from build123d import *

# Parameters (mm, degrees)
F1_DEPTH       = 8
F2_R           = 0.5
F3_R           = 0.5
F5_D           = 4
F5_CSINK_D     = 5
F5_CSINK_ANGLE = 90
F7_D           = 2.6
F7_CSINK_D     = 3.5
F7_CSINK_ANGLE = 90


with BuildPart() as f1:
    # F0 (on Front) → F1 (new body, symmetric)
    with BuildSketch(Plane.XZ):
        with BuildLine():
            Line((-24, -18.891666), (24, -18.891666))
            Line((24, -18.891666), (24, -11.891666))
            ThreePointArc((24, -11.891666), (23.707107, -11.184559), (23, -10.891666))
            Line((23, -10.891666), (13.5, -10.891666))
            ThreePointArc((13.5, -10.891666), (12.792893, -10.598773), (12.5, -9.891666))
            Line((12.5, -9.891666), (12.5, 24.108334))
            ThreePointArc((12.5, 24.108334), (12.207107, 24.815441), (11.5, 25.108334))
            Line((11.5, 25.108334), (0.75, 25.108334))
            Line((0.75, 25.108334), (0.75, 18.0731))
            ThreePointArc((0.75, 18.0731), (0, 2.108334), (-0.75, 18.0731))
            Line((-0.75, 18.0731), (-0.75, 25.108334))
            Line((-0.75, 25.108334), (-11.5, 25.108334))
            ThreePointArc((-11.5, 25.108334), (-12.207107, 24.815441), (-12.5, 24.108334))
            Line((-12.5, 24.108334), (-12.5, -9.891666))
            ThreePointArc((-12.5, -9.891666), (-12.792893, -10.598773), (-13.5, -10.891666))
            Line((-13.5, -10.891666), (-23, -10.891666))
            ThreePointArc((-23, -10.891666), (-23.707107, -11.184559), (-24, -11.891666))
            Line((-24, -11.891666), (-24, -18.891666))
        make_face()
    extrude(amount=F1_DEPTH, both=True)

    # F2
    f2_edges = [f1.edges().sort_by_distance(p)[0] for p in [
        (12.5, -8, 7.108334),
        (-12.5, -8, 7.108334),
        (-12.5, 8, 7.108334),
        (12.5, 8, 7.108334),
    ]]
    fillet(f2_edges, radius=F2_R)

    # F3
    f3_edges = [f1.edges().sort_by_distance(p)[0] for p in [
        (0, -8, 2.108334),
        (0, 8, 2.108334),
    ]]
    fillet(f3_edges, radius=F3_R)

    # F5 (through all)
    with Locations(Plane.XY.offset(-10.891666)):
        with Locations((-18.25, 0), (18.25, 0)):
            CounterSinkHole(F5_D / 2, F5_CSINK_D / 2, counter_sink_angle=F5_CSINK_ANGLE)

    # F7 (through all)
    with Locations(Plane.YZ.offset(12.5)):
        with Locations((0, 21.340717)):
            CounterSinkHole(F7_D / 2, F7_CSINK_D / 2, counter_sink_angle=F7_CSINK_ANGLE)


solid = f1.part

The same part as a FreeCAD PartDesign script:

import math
import FreeCAD as App
import Part
import Sketcher
from FreeCAD import Vector
Q = App.Units.Quantity


def edges_at(feature, points):
    """Names of the edges that pass closest to the given points."""
    edges = feature.Shape.Edges
    near = lambda p: min(range(len(edges)), key=lambda i: edges[i].distToShape(Part.Vertex(*p))[0])
    return sorted({f"Edge{near(p) + 1}" for p in points})

doc = App.newDocument("Part")
params = doc.addObject("Spreadsheet::Sheet", "Params")
for row, (alias, value) in enumerate([
    ("sketch1_radius", "0.999999 mm"),
    ("sketch1_radius2", "8 mm"),
    ("sketch1_width", "48 mm"),
    ("sketch1_height", "7 mm"),
    ("sketch1_height2", "34 mm"),
    ("pad1_length", "16 mm"),
    ("fillet_radius", "0.5 mm"),
    ("fillet2_radius", "0.5 mm"),
    ("sketch2_diameter", "4 mm"),
    ("hole_diameter", "4 mm"),
    ("hole_csink_diameter", "5 mm"),
    ("sketch3_diameter", "2.6 mm"),
    ("hole2_diameter", "2.6 mm"),
    ("hole2_csink_diameter", "3.5 mm"),
], start=1):
    params.set(f"A{row}", alias)
    params.set(f"B{row}", "=" + value)
    params.setAlias(f"B{row}", alias)

body = doc.addObject("PartDesign::Body", "Body")

# Sketch on XZ plane
sketch1 = body.newObject("Sketcher::SketchObject", "Sketch")
sketch1.AttachmentSupport = (doc.getObject("XZ_Plane"), [""])
sketch1.MapMode = "FlatFace"
sketch1.addGeometry([
    Part.LineSegment(Vector(-24, -18.891666, 0), Vector(24, -18.891666, 0)),  # 0
    Part.LineSegment(Vector(24, -18.891666, 0), Vector(24, -11.891666, 0)),  # 1
    Part.ArcOfCircle(Part.Circle(Vector(23.000001, -11.891665, 0), Vector(0, 0, 1), 0.999999), math.radians(-0.000043), math.radians(90.000043)),  # 2
    Part.LineSegment(Vector(23, -10.891666, 0), Vector(13.5, -10.891666, 0)),  # 3
    Part.ArcOfCircle(Part.Circle(Vector(13.499999, -9.891667, 0), Vector(0, 0, 1), 0.999999), math.radians(179.999957), math.radians(270.000043)),  # 4
    Part.LineSegment(Vector(12.5, -9.891666, 0), Vector(12.5, 24.108334, 0)),  # 5
    Part.ArcOfCircle(Part.Circle(Vector(11.500001, 24.108335, 0), Vector(0, 0, 1), 0.999999), math.radians(-0.000043), math.radians(90.000043)),  # 6
    Part.LineSegment(Vector(11.5, 25.108334, 0), Vector(0.75, 25.108334, 0)),  # 7
    Part.LineSegment(Vector(0.75, 25.108334, 0), Vector(0.75, 18.0731, 0)),  # 8
    Part.ArcOfCircle(Part.Circle(Vector(0, 10.108334, 0), Vector(0, 0, 1), 8), math.radians(95.379379), math.radians(444.620621)),  # 9
    Part.LineSegment(Vector(-0.75, 18.0731, 0), Vector(-0.75, 25.108334, 0)),  # 10
    Part.LineSegment(Vector(-0.75, 25.108334, 0), Vector(-11.5, 25.108334, 0)),  # 11
    Part.ArcOfCircle(Part.Circle(Vector(-11.500001, 24.108335, 0), Vector(0, 0, 1), 0.999999), math.radians(89.999957), math.radians(180.000043)),  # 12
    Part.LineSegment(Vector(-12.5, 24.108334, 0), Vector(-12.5, -9.891666, 0)),  # 13
    Part.ArcOfCircle(Part.Circle(Vector(-13.499999, -9.891667, 0), Vector(0, 0, 1), 0.999999), math.radians(-90.000043), math.radians(0.000043)),  # 14
    Part.LineSegment(Vector(-13.5, -10.891666, 0), Vector(-23, -10.891666, 0)),  # 15
    Part.ArcOfCircle(Part.Circle(Vector(-23.000001, -11.891665, 0), Vector(0, 0, 1), 0.999999), math.radians(89.999957), math.radians(180.000043)),  # 16
    Part.LineSegment(Vector(-24, -11.891666, 0), Vector(-24, -18.891666, 0)),  # 17
], False)
sketch1.addConstraint([
    Sketcher.Constraint("Coincident", 0, 2, 1, 1),
    Sketcher.Constraint("Tangent", 1, 2, 2, 1),
    Sketcher.Constraint("Tangent", 2, 2, 3, 1),
    Sketcher.Constraint("Tangent", 3, 2, 4, 2),
    Sketcher.Constraint("Tangent", 4, 1, 5, 1),
    Sketcher.Constraint("Tangent", 5, 2, 6, 1),
    Sketcher.Constraint("Tangent", 6, 2, 7, 1),
    Sketcher.Constraint("Coincident", 7, 2, 8, 1),
    Sketcher.Constraint("Coincident", 8, 2, 9, 2),
    Sketcher.Constraint("Coincident", 9, 1, 10, 1),
    Sketcher.Constraint("Coincident", 10, 2, 11, 1),
    Sketcher.Constraint("Tangent", 11, 2, 12, 1),
    Sketcher.Constraint("Tangent", 12, 2, 13, 1),
    Sketcher.Constraint("Tangent", 13, 2, 14, 2),
    Sketcher.Constraint("Tangent", 14, 1, 15, 1),
    Sketcher.Constraint("Tangent", 15, 2, 16, 1),
    Sketcher.Constraint("Tangent", 16, 2, 17, 1),
    Sketcher.Constraint("Coincident", 17, 2, 0, 1),
    Sketcher.Constraint("Horizontal", 0),
    Sketcher.Constraint("Vertical", 1),
    Sketcher.Constraint("Horizontal", 3),
    Sketcher.Constraint("Vertical", 5),
    Sketcher.Constraint("Horizontal", 7),
    Sketcher.Constraint("Vertical", 8),
    Sketcher.Constraint("Vertical", 10),
    Sketcher.Constraint("Horizontal", 11),
    Sketcher.Constraint("Vertical", 13),
    Sketcher.Constraint("Horizontal", 15),
    Sketcher.Constraint("Vertical", 17),
    Sketcher.Constraint("Equal", 2, 4),
    Sketcher.Constraint("Equal", 4, 6),
    Sketcher.Constraint("Equal", 6, 12),
    Sketcher.Constraint("Equal", 12, 14),
    Sketcher.Constraint("Equal", 14, 16),
    Sketcher.Constraint("Symmetric", 6, 3, 12, 3, -2),
    Sketcher.Constraint("Symmetric", 2, 3, 16, 3, -2),
    Sketcher.Constraint("Symmetric", 8, 2, 9, 1, -2),
    Sketcher.Constraint("Radius", 2, Q("0.999999 mm")),
    Sketcher.Constraint("Radius", 9, Q("8 mm")),
    Sketcher.Constraint("DistanceX", 0, 1, 0, 2, Q("48 mm")),
    Sketcher.Constraint("DistanceY", 1, 1, 1, 2, Q("7 mm")),
    Sketcher.Constraint("DistanceY", 5, 1, 5, 2, Q("34 mm")),
    Sketcher.Constraint("DistanceX", 3, 2, 3, 1, Q("9.5 mm")),
    Sketcher.Constraint("DistanceY", 9, 3, 6, 3, Q("14.000001 mm")),
    Sketcher.Constraint("DistanceX", 7, 2, 7, 1, Q("10.75 mm")),
    Sketcher.Constraint("DistanceY", -1, 1, 8, 2, Q("18.0731 mm")),
])
sketch1.setExpression("Constraints[37]", "Params.sketch1_radius")
sketch1.setExpression("Constraints[38]", "Params.sketch1_radius2")
sketch1.setExpression("Constraints[39]", "Params.sketch1_width")
sketch1.setExpression("Constraints[40]", "Params.sketch1_height")
sketch1.setExpression("Constraints[41]", "Params.sketch1_height2")
pad1 = body.newObject("PartDesign::Pad", "Pad")
pad1.Profile = sketch1
pad1.setExpression("Length", "Params.pad1_length")
pad1.Midplane = True
doc.recompute()

fillet = body.newObject("PartDesign::Fillet", "Fillet")
fillet.Base = (pad1, edges_at(pad1, [
    (12.5, -8, 7.108),
    (-12.5, -8, 7.108),
    (-12.5, 8, 7.108),
    (12.5, 8, 7.108),
]))
fillet.setExpression("Radius", "Params.fillet_radius")
doc.recompute()

fillet2 = body.newObject("PartDesign::Fillet", "Fillet001")
fillet2.Base = (fillet, edges_at(fillet, [(0, -8, 2.108), (0, 8, 2.108)]))
fillet2.setExpression("Radius", "Params.fillet2_radius")

# Sketch on XY plane
sketch2 = body.newObject("Sketcher::SketchObject", "Sketch001")
sketch2.AttachmentSupport = (doc.getObject("XY_Plane"), [""])
sketch2.MapMode = "FlatFace"
sketch2.AttachmentOffset = App.Placement(Vector(0, 0, -10.891666), App.Rotation())
sketch2.addGeometry([
    Part.Circle(Vector(-18.25, 0, 0), Vector(0, 0, 1), 2),
    Part.Circle(Vector(18.25, 0, 0), Vector(0, 0, 1), 2),
], False)
sketch2.addConstraint([
    Sketcher.Constraint("Equal", 0, 1),
    Sketcher.Constraint("Symmetric", 0, 3, 1, 3, -1, 1),
    Sketcher.Constraint("PointOnObject", 0, 3, -1),
    Sketcher.Constraint("Diameter", 0, Q("4 mm")),
    Sketcher.Constraint("DistanceX", 0, 3, 1, 3, Q("36.5 mm")),
])
sketch2.setExpression("Constraints[3]", "Params.sketch2_diameter")
doc.recompute()
hole = body.newObject("PartDesign::Hole", "Hole")
hole.Profile = sketch2
hole.ThreadType = "None"
hole.setExpression("Diameter", "Params.hole_diameter")
hole.DepthType = "ThroughAll"
hole.HoleCutType = "Countersink"
hole.setExpression("HoleCutDiameter", "Params.hole_csink_diameter")
hole.HoleCutCountersinkAngle = 90

# Sketch on YZ plane
sketch3 = body.newObject("Sketcher::SketchObject", "Sketch002")
sketch3.AttachmentSupport = (doc.getObject("YZ_Plane"), [""])
sketch3.MapMode = "FlatFace"
sketch3.AttachmentOffset = App.Placement(Vector(0, 0, 12.5), App.Rotation())
sketch3.addGeometry(Part.Circle(Vector(0, 21.340717, 0), Vector(0, 0, 1), 1.3), False)
sketch3.addConstraint([
    Sketcher.Constraint("PointOnObject", 0, 3, -2),
    Sketcher.Constraint("Diameter", 0, Q("2.6 mm")),
    Sketcher.Constraint("DistanceY", -1, 1, 0, 3, Q("21.340717 mm")),
])
sketch3.setExpression("Constraints[1]", "Params.sketch3_diameter")
doc.recompute()
hole2 = body.newObject("PartDesign::Hole", "Hole001")
hole2.Profile = sketch3
hole2.ThreadType = "None"
hole2.setExpression("Diameter", "Params.hole2_diameter")
hole2.DepthType = "ThroughAll"
hole2.HoleCutType = "Countersink"
hole2.setExpression("HoleCutDiameter", "Params.hole2_csink_diameter")
hole2.HoleCutCountersinkAngle = 90

doc.recompute()
